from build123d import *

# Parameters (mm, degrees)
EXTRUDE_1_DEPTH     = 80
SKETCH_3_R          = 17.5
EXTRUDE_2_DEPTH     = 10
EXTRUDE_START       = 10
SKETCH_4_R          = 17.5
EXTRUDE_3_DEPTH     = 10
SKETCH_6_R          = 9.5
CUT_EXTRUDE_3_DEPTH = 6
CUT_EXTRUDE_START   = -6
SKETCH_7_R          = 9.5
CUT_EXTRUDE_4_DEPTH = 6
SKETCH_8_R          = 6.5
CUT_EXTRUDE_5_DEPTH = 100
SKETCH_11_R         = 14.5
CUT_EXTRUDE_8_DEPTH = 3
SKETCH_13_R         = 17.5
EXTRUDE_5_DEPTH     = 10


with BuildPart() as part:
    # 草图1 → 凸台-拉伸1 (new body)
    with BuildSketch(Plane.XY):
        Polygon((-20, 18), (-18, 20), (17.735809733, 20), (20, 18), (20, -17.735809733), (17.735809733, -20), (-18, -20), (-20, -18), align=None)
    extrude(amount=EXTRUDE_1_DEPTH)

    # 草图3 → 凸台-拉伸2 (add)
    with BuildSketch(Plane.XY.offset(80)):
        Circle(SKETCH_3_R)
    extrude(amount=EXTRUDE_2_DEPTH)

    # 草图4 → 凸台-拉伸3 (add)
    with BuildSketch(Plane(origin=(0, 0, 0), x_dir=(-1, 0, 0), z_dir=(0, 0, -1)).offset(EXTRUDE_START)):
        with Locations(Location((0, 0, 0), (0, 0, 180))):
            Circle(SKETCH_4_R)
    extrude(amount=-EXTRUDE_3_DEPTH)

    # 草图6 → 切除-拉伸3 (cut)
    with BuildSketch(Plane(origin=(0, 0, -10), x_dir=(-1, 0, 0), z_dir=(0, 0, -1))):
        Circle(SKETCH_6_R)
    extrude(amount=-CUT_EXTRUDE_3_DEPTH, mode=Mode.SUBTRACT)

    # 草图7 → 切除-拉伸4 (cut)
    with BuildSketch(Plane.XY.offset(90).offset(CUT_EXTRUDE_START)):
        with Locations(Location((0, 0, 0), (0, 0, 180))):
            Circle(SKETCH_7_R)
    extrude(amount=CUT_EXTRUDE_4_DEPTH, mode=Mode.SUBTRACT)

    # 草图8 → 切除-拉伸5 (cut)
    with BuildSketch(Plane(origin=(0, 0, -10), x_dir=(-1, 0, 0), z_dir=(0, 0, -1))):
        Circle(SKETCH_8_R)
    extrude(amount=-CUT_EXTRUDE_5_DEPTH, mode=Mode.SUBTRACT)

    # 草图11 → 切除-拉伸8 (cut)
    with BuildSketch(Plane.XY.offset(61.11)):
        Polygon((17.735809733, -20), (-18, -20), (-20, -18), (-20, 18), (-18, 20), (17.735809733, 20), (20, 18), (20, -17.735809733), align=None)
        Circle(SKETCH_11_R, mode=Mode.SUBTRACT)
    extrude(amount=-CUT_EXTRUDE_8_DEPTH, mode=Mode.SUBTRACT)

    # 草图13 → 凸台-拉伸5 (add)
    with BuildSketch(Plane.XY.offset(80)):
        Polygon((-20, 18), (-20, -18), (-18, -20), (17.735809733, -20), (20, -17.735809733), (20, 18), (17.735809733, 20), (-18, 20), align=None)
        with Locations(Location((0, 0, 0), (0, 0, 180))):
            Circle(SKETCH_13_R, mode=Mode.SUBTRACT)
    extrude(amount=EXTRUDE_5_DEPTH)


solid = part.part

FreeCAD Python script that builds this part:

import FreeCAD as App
import Part
import Sketcher
from FreeCAD import Vector
Q = App.Units.Quantity


def add_polygon(sketch, points):
    """Adds a closed chain of lines whose ends are joined by coincident constraints."""
    first, n = sketch.GeometryCount, len(points)
    for a, b in zip(points, points[1:] + points[:1]):
        sketch.addGeometry(Part.LineSegment(App.Vector(*a, 0), App.Vector(*b, 0)), False)
    for i in range(n):
        sketch.addConstraint(Sketcher.Constraint("Coincident", first + i, 2, first + (i + 1) % n, 1))

doc = App.newDocument("Part")
body = doc.addObject("PartDesign::Body", "Body")

sketch1 = doc.addObject("Sketcher::SketchObject", "Sketch")
body.addObject(sketch1)
sketch1.AttachmentSupport = (doc.XY_Plane, [""])
sketch1.MapMode = "FlatFace"
add_polygon(sketch1, [(-18, 20), (-20, 18), (-20, -18), (-18, -20), (17.7, -20), (20, -17.7), (20, 18), (17.7, 20)])
sketch1.addConstraint(Sketcher.Constraint("Vertical", 1))
sketch1.addConstraint(Sketcher.Constraint("Horizontal", 3))
sketch1.addConstraint(Sketcher.Constraint("Vertical", 5))
sketch1.addConstraint(Sketcher.Constraint("Horizontal", 7))
sketch1.addConstraint(Sketcher.Constraint("Symmetric", 1, 2, 5, 2, -1, 1))
sketch1.addConstraint(Sketcher.Constraint("Symmetric", 3, 2, 6, 2, -1))
sketch1.addConstraint(Sketcher.Constraint("Perpendicular", 0, 2))
sketch1.addConstraint(Sketcher.Constraint("Perpendicular", 2, 4))
sketch1.addConstraint(Sketcher.Constraint("Horizontal", 0, 2, 5, 2))
sketch1.addConstraint(Sketcher.Constraint("Vertical", 2, 2, 7, 2))
sketch1.addConstraint(Sketcher.Constraint("Equal", 7, 5))
sketch1.addConstraint(Sketcher.Constraint("DistanceY", 1, 2, 1, 1, Q("36 mm")))
sketch1.addConstraint(Sketcher.Constraint("DistanceX", 0, 2, -1, 1, Q("20 mm")))
sketch1.addConstraint(Sketcher.Constraint("DistanceX", 3, 1, 3, 2, Q("35.73581 mm")))
pad1 = doc.addObject("PartDesign::Pad", "Pad")
body.addObject(pad1)
pad1.Profile = sketch1
pad1.Length = 80

sketch2 = doc.addObject("Sketcher::SketchObject", "Sketch001")
body.addObject(sketch2)
sketch2.AttachmentSupport = (doc.XY_Plane, [""])
sketch2.MapMode = "FlatFace"
sketch2.AttachmentOffset = App.Placement(Vector(0, 0, 80), App.Rotation())
sketch2.addGeometry(Part.Circle(Vector(0, 0, 0), Vector(0, 0, 1), 18), False)
sketch2.addConstraint(Sketcher.Constraint("Coincident", 0, 3, -1, 1))
sketch2.addConstraint(Sketcher.Constraint("Diameter", 0, Q("35 mm")))
pad2 = doc.addObject("PartDesign::Pad", "Pad001")
body.addObject(pad2)
pad2.Profile = sketch2
pad2.Length = 10

sketch3 = doc.addObject("Sketcher::SketchObject", "Sketch002")
body.addObject(sketch3)
sketch3.AttachmentSupport = (doc.XY_Plane, [""])
sketch3.MapMode = "FlatFace"
sketch3.AttachmentOffset = App.Placement(Vector(0, 0, -10), App.Rotation())
sketch3.addGeometry(Part.Circle(Vector(0, 0, 0), Vector(0, 0, 1), 18), False)
sketch3.addConstraint(Sketcher.Constraint("Coincident", 0, 3, -1, 1))
sketch3.addConstraint(Sketcher.Constraint("Diameter", 0, Q("35 mm")))
pad3 = doc.addObject("PartDesign::Pad", "Pad002")
body.addObject(pad3)
pad3.Profile = sketch3
pad3.Length = 10

sketch4 = doc.addObject("Sketcher::SketchObject", "Sketch003")
body.addObject(sketch4)
sketch4.AttachmentSupport = (doc.XY_Plane, [""])
sketch4.MapMode = "FlatFace"
sketch4.AttachmentOffset = App.Placement(Vector(0, 0, -10), App.Rotation())
sketch4.addGeometry(Part.Circle(Vector(0, 0, 0), Vector(0, 0, 1), 10), False)
sketch4.addConstraint(Sketcher.Constraint("Coincident", 0, 3, -1, 1))
sketch4.addConstraint(Sketcher.Constraint("Diameter", 0, Q("19 mm")))
pocket1 = doc.addObject("PartDesign::Pocket", "Pocket")
body.addObject(pocket1)
pocket1.Profile = sketch4
pocket1.Length = 6
pocket1.Reversed = True

sketch5 = doc.addObject("Sketcher::SketchObject", "Sketch004")
body.addObject(sketch5)
sketch5.AttachmentSupport = (doc.XY_Plane, [""])
sketch5.MapMode = "FlatFace"
sketch5.AttachmentOffset = App.Placement(Vector(0, 0, 84), App.Rotation())
sketch5.addGeometry(Part.Circle(Vector(0, 0, 0), Vector(0, 0, 1), 10), False)
sketch5.addConstraint(Sketcher.Constraint("Coincident", 0, 3, -1, 1))
sketch5.addConstraint(Sketcher.Constraint("Diameter", 0, Q("19 mm")))
pocket2 = doc.addObject("PartDesign::Pocket", "Pocket001")
body.addObject(pocket2)
pocket2.Profile = sketch5
pocket2.Length = 6
pocket2.Reversed = True

sketch6 = doc.addObject("Sketcher::SketchObject", "Sketch005")
body.addObject(sketch6)
sketch6.AttachmentSupport = (doc.XY_Plane, [""])
sketch6.MapMode = "FlatFace"
sketch6.AttachmentOffset = App.Placement(Vector(0, 0, -10), App.Rotation())
sketch6.addGeometry(Part.Circle(Vector(0, 0, 0), Vector(0, 0, 1), 6), False)
sketch6.addConstraint(Sketcher.Constraint("Coincident", 0, 3, -1, 1))
sketch6.addConstraint(Sketcher.Constraint("Diameter", 0, Q("13 mm")))
pocket3 = doc.addObject("PartDesign::Pocket", "Pocket002")
body.addObject(pocket3)
pocket3.Profile = sketch6
pocket3.Length = 100
pocket3.Reversed = True

sketch7 = doc.addObject("Sketcher::SketchObject", "Sketch006")
body.addObject(sketch7)
sketch7.AttachmentSupport = (doc.XY_Plane, [""])
sketch7.MapMode = "FlatFace"
sketch7.AttachmentOffset = App.Placement(Vector(0, 0, 61.11), App.Rotation())
add_polygon(sketch7, [(-18, -20), (17.7, -20), (20, -17.7), (20, 18), (17.7, 20), (-18, 20), (-20, 18), (-20, -18)])
sketch7.addGeometry(Part.Circle(Vector(0, 0, 0), Vector(0, 0, 1), 14.5), False)
sketch7.addConstraint(Sketcher.Constraint("Horizontal", 0))
sketch7.addConstraint(Sketcher.Constraint("Vertical", 2))
sketch7.addConstraint(Sketcher.Constraint("Horizontal", 4))
sketch7.addConstraint(Sketcher.Constraint("Vertical", 6))
sketch7.addConstraint(Sketcher.Constraint("Coincident", 8, 3, -1, 1))
sketch7.addConstraint(Sketcher.Constraint("Symmetric", 2, 2, 6, 2, -1, 1))
sketch7.addConstraint(Sketcher.Constraint("Symmetric", 0, 2, 3, 2, -1))
sketch7.addConstraint(Sketcher.Constraint("Parallel", 1, 5))
sketch7.addConstraint(Sketcher.Constraint("Perpendicular", 5, 7))
sketch7.addConstraint(Sketcher.Constraint("Horizontal", 2, 2, 5, 2))
sketch7.addConstraint(Sketcher.Constraint("Vertical", 4, 2, 7, 2))
sketch7.addConstraint(Sketcher.Constraint("Equal", 4, 2))
sketch7.addConstraint(Sketcher.Constraint("Diameter", 8, Q("29 mm")))
sketch7.addConstraint(Sketcher.Constraint("DistanceY", 6, 2, 6, 1, Q("36 mm")))
sketch7.addConstraint(Sketcher.Constraint("DistanceY", 0, 2, -1, 1, Q("20 mm")))
sketch7.addConstraint(Sketcher.Constraint("DistanceX", 0, 1, 0, 2, Q("35.73581 mm")))
pocket4 = doc.addObject("PartDesign::Pocket", "Pocket003")
body.addObject(pocket4)
pocket4.Profile = sketch7
pocket4.Length = 3

sketch8 = doc.addObject("Sketcher::SketchObject", "Sketch007")
body.addObject(sketch8)
sketch8.AttachmentSupport = (doc.XY_Plane, [""])
sketch8.MapMode = "FlatFace"
sketch8.AttachmentOffset = App.Placement(Vector(0, 0, 80), App.Rotation())
add_polygon(sketch8, [(-20, 18), (-20, -18), (-18, -20), (17.7, -20), (20, -17.7), (20, 18), (17.7, 20), (-18, 20)])
sketch8.addGeometry(Part.Circle(Vector(0, 0, 0), Vector(0, 0, 1), 17.5), False)
sketch8.addConstraint(Sketcher.Constraint("Vertical", 0))
sketch8.addConstraint(Sketcher.Constraint("Horizontal", 2))
sketch8.addConstraint(Sketcher.Constraint("Vertical", 4))
sketch8.addConstraint(Sketcher.Constraint("Horizontal", 6))
sketch8.addConstraint(Sketcher.Constraint("Coincident", 8, 3, -1, 1))
sketch8.addConstraint(Sketcher.Constraint("Symmetric", 0, 2, 4, 2, -1, 1))
sketch8.addConstraint(Sketcher.Constraint("Symmetric", 2, 2, 5, 2, -1))
sketch8.addConstraint(Sketcher.Constraint("Perpendicular", 1, 3))
sketch8.addConstraint(Sketcher.Constraint("Parallel", 3, 7))
sketch8.addConstraint(Sketcher.Constraint("Horizontal", 4, 2, 7, 2))
sketch8.addConstraint(Sketcher.Constraint("Vertical", 1, 2, 6, 2))
sketch8.addConstraint(Sketcher.Constraint("Equal", 6, 4))
sketch8.addConstraint(Sketcher.Constraint("Diameter", 8, Q("35 mm")))
sketch8.addConstraint(Sketcher.Constraint("DistanceY", 0, 2, 0, 1, Q("36 mm")))
sketch8.addConstraint(Sketcher.Constraint("DistanceX", 0, 2, -1, 1, Q("20 mm")))
sketch8.addConstraint(Sketcher.Constraint("DistanceX", 2, 1, 2, 2, Q("35.73581 mm")))
pad4 = doc.addObject("PartDesign::Pad", "Pad003")
body.addObject(pad4)
pad4.Profile = sketch8
pad4.Length = 10

doc.recompute()
